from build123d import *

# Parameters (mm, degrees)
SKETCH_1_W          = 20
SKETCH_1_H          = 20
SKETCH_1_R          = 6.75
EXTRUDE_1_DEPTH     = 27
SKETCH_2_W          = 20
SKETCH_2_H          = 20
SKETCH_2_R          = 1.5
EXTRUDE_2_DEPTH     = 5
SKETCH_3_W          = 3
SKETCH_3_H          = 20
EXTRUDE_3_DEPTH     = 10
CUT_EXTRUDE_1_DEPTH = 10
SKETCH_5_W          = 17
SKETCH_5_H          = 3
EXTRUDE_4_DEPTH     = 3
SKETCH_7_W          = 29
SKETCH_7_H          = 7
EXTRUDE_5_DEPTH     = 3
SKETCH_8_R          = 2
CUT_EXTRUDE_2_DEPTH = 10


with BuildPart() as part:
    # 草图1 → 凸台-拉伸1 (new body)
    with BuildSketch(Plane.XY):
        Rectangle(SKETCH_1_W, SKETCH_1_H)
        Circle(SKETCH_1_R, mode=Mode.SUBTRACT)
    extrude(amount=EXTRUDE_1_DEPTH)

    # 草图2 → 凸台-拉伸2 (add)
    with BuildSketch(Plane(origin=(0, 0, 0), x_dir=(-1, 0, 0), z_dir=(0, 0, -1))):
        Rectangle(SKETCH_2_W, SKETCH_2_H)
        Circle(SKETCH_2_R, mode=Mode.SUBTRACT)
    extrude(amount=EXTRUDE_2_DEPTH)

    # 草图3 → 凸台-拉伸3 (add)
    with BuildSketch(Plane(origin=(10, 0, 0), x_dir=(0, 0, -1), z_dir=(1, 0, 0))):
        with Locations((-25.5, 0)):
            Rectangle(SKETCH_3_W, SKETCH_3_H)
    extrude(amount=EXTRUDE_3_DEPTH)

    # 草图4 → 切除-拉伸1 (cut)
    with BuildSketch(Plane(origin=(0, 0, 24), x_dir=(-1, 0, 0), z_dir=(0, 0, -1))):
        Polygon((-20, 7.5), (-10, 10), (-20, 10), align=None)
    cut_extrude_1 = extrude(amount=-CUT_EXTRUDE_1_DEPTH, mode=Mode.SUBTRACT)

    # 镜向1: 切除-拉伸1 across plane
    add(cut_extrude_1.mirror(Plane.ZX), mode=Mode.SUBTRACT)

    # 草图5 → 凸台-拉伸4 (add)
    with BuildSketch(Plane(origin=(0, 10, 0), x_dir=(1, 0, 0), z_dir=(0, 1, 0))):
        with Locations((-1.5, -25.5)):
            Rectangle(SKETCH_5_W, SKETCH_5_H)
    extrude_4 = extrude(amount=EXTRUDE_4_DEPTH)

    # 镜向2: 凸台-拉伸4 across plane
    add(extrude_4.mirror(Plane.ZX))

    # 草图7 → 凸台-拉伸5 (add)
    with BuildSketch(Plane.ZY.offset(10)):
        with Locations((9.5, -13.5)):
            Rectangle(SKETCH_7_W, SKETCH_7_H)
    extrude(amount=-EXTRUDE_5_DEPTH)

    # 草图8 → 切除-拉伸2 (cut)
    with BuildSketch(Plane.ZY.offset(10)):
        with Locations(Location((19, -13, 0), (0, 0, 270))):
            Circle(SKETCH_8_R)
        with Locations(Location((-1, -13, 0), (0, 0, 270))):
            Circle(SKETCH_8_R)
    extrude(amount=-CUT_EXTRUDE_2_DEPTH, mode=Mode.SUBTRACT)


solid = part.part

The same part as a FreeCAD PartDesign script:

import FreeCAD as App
import Part
import Sketcher

V = App.Vector

doc = App.newDocument("Part")
body = doc.addObject("PartDesign::Body", "Body")

sketch1 = body.newObject("Sketcher::SketchObject", "Sketch")
sketch1.AttachmentSupport = (doc.getObject("XY_Plane"), [""])
sketch1.MapMode = "FlatFace"
sketch1.addGeometry([
    Part.LineSegment(V(-10, 10, 0), V(-10, -10, 0)),
    Part.LineSegment(V(-10, -10, 0), V(10, -10, 0)),
    Part.LineSegment(V(10, -10, 0), V(10, 10, 0)),
    Part.LineSegment(V(10, 10, 0), V(-10, 10, 0)),
    Part.Circle(V(0, 0, 0), V(0, 0, 1), 7),
], False)
sketch1.addConstraint([
    Sketcher.Constraint("Coincident", 0, 2, 1, 1),
    Sketcher.Constraint("Coincident", 1, 2, 2, 1),
    Sketcher.Constraint("Coincident", 2, 2, 3, 1),
    Sketcher.Constraint("Coincident", 3, 2, 0, 1),
    Sketcher.Constraint("Vertical", 0),
    Sketcher.Constraint("Horizontal", 1),
    Sketcher.Constraint("Vertical", 2),
    Sketcher.Constraint("Horizontal", 3),
    Sketcher.Constraint("Coincident", 4, 3, -1, 1),
    Sketcher.Constraint("Symmetric", 0, 2, 2, 2, -1, 1),
    Sketcher.Constraint("Equal", 3, 0),
    Sketcher.Constraint("Diameter", 4, 13.5),
    Sketcher.Constraint("DistanceX", 1, 1, 1, 2, 20.0),
])
pad1 = body.newObject("PartDesign::Pad", "Pad")
pad1.Profile = sketch1
pad1.Length = 27

sketch2 = body.newObject("Sketcher::SketchObject", "Sketch001")
sketch2.AttachmentSupport = (doc.getObject("XY_Plane"), [""])
sketch2.MapMode = "FlatFace"
sketch2.addGeometry([
    Part.LineSegment(V(10, 10, 0), V(10, -10, 0)),
    Part.LineSegment(V(10, -10, 0), V(-10, -10, 0)),
    Part.LineSegment(V(-10, -10, 0), V(-10, 10, 0)),
    Part.LineSegment(V(-10, 10, 0), V(10, 10, 0)),
    Part.Circle(V(0, 0, 0), V(0, 0, 1), 1.5),
], False)
sketch2.addConstraint([
    Sketcher.Constraint("Coincident", 0, 2, 1, 1),
    Sketcher.Constraint("Coincident", 1, 2, 2, 1),
    Sketcher.Constraint("Coincident", 2, 2, 3, 1),
    Sketcher.Constraint("Coincident", 3, 2, 0, 1),
    Sketcher.Constraint("Vertical", 0),
    Sketcher.Constraint("Horizontal", 1),
    Sketcher.Constraint("Vertical", 2),
    Sketcher.Constraint("Horizontal", 3),
    Sketcher.Constraint("Coincident", 4, 3, -1, 1),
    Sketcher.Constraint("Symmetric", 0, 2, 2, 2, -1, 1),
    Sketcher.Constraint("Equal", 3, 0),
    Sketcher.Constraint("Diameter", 4, 3.0),
    Sketcher.Constraint("DistanceX", 1, 2, 1, 1, 20.0),
])
pad2 = body.newObject("PartDesign::Pad", "Pad001")
pad2.Profile = sketch2
pad2.Length = 5
pad2.Reversed = True

sketch3 = body.newObject("Sketcher::SketchObject", "Sketch002")
sketch3.AttachmentSupport = (doc.getObject("YZ_Plane"), [""])
sketch3.MapMode = "FlatFace"
sketch3.AttachmentOffset = App.Placement(V(0, 0, 10), App.Rotation())
sketch3.addGeometry([
    Part.LineSegment(V(10, 27, 0), V(-10, 27, 0)),
    Part.LineSegment(V(-10, 27, 0), V(-10, 24, 0)),
    Part.LineSegment(V(-10, 24, 0), V(10, 24, 0)),
    Part.LineSegment(V(10, 24, 0), V(10, 27, 0)),
], False)
sketch3.addConstraint([
    Sketcher.Constraint("Coincident", 0, 2, 1, 1),
    Sketcher.Constraint("Coincident", 1, 2, 2, 1),
    Sketcher.Constraint("Coincident", 2, 2, 3, 1),
    Sketcher.Constraint("Coincident", 3, 2, 0, 1),
    Sketcher.Constraint("Horizontal", 0),
    Sketcher.Constraint("Vertical", 1),
    Sketcher.Constraint("Horizontal", 2),
    Sketcher.Constraint("Vertical", 3),
    Sketcher.Constraint("DistanceX", 0, 2, 0, 1, 20.0),
    Sketcher.Constraint("DistanceY", 1, 2, 1, 1, 3.0),
    Sketcher.Constraint("DistanceX", 0, 2, -1, 1, 10.0),
    Sketcher.Constraint("DistanceY", -1, 1, 0, 2, 27.0),
])
pad3 = body.newObject("PartDesign::Pad", "Pad002")
pad3.Profile = sketch3
pad3.Length = 10

sketch4 = body.newObject("Sketcher::SketchObject", "Sketch003")
sketch4.AttachmentSupport = (doc.getObject("XY_Plane"), [""])
sketch4.MapMode = "FlatFace"
sketch4.AttachmentOffset = App.Placement(V(0, 0, 24), App.Rotation())
sketch4.addGeometry([
    Part.LineSegment(V(20, 7.5, 0), V(10, 10, 0)),
    Part.LineSegment(V(10, 10, 0), V(20, 10, 0)),
    Part.LineSegment(V(20, 10, 0), V(20, 7.5, 0)),
], False)
sketch4.addConstraint([
    Sketcher.Constraint("Coincident", 0, 2, 1, 1),
    Sketcher.Constraint("Coincident", 1, 2, 2, 1),
    Sketcher.Constraint("Coincident", 2, 2, 0, 1),
    Sketcher.Constraint("Horizontal", 1),
    Sketcher.Constraint("Vertical", 2),
    Sketcher.Constraint("DistanceX", 1, 1, 1, 2, 10.0),
    Sketcher.Constraint("DistanceY", 2, 2, 2, 1, 2.5),
    Sketcher.Constraint("DistanceX", -1, 1, 0, 2, 10.0),
    Sketcher.Constraint("DistanceY", -1, 1, 0, 2, 10.0),
])
pocket1 = body.newObject("PartDesign::Pocket", "Pocket")
pocket1.Profile = sketch4
pocket1.Length = 10
pocket1.Reversed = True
doc.recompute()

mirrored = body.newObject("PartDesign::Mirrored", "Mirrored")
mirrored.Originals = [pocket1]
mirrored.MirrorPlane = (doc.getObject("XZ_Plane"), [""])
body.Tip = mirrored

sketch5 = body.newObject("Sketcher::SketchObject", "Sketch004")
sketch5.AttachmentSupport = (doc.getObject("XZ_Plane"), [""])
sketch5.MapMode = "FlatFace"
sketch5.AttachmentOffset = App.Placement(V(0, 0, -10), App.Rotation())
sketch5.addGeometry([
    Part.LineSegment(V(-10, 24, 0), V(-10, 27, 0)),
    Part.LineSegment(V(-10, 27, 0), V(7, 27, 0)),
    Part.LineSegment(V(7, 27, 0), V(7, 24, 0)),
    Part.LineSegment(V(7, 24, 0), V(-10, 24, 0)),
], False)
sketch5.addConstraint([
    Sketcher.Constraint("Coincident", 0, 2, 1, 1),
    Sketcher.Constraint("Coincident", 1, 2, 2, 1),
    Sketcher.Constraint("Coincident", 2, 2, 3, 1),
    Sketcher.Constraint("Coincident", 3, 2, 0, 1),
    Sketcher.Constraint("Vertical", 0),
    Sketcher.Constraint("Horizontal", 1),
    Sketcher.Constraint("Vertical", 2),
    Sketcher.Constraint("Horizontal", 3),
    Sketcher.Constraint("DistanceX", 1, 1, 1, 2, 17.0),
    Sketcher.Constraint("DistanceY", 0, 1, 0, 2, 3.0),
    Sketcher.Constraint("DistanceX", 0, 2, -1, 1, 10.0),
    Sketcher.Constraint("DistanceY", -1, 1, 0, 2, 27.0),
])
pad4 = body.newObject("PartDesign::Pad", "Pad003")
pad4.Profile = sketch5
pad4.Length = 3
pad4.Reversed = True
doc.recompute()

mirrored2 = body.newObject("PartDesign::Mirrored", "Mirrored001")
mirrored2.Originals = [pad4]
mirrored2.MirrorPlane = (doc.getObject("XZ_Plane"), [""])
body.Tip = mirrored2

sketch6 = body.newObject("Sketcher::SketchObject", "Sketch005")
sketch6.AttachmentSupport = (doc.getObject("YZ_Plane"), [""])
sketch6.MapMode = "FlatFace"
sketch6.AttachmentOffset = App.Placement(V(0, 0, -10), App.Rotation())
sketch6.addGeometry([
    Part.LineSegment(V(-10, -5, 0), V(-17, -5, 0)),
    Part.LineSegment(V(-17, -5, 0), V(-17, 24, 0)),
    Part.LineSegment(V(-17, 24, 0), V(-10, 24, 0)),
    Part.LineSegment(V(-10, 24, 0), V(-10, -5, 0)),
], False)
sketch6.addConstraint([
    Sketcher.Constraint("Coincident", 0, 2, 1, 1),
    Sketcher.Constraint("Coincident", 1, 2, 2, 1),
    Sketcher.Constraint("Coincident", 2, 2, 3, 1),
    Sketcher.Constraint("Coincident", 3, 2, 0, 1),
    Sketcher.Constraint("Horizontal", 0),
    Sketcher.Constraint("Vertical", 1),
    Sketcher.Constraint("Horizontal", 2),
    Sketcher.Constraint("Vertical", 3),
    Sketcher.Constraint("DistanceX", 0, 2, 0, 1, 7.0),
    Sketcher.Constraint("DistanceY", 1, 1, 1, 2, 29.0),
    Sketcher.Constraint("DistanceX", 0, 2, -1, 1, 17.0),
    Sketcher.Constraint("DistanceY", 0, 2, -1, 1, 5.0),
])
pad5 = body.newObject("PartDesign::Pad", "Pad004")
pad5.Profile = sketch6
pad5.Length = 3

sketch7 = body.newObject("Sketcher::SketchObject", "Sketch006")
sketch7.AttachmentSupport = (doc.getObject("YZ_Plane"), [""])
sketch7.MapMode = "FlatFace"
sketch7.AttachmentOffset = App.Placement(V(0, 0, -10), App.Rotation())
sketch7.addGeometry([
    Part.Circle(V(-13, 19, 0), V(0, 0, 1), 2),
    Part.Circle(V(-13, -1, 0), V(0, 0, 1), 2),
], False)
sketch7.addConstraint([
    Sketcher.Constraint("Equal", 0, 1),
    Sketcher.Constraint("Vertical", 0, 3, 1, 3),
    Sketcher.Constraint("Diameter", 0, 4.0),
    Sketcher.Constraint("DistanceX", 0, 3, -1, 1, 13.0),
    Sketcher.Constraint("DistanceY", -1, 1, 0, 3, 19.0),
    Sketcher.Constraint("DistanceY", 1, 3, -1, 1, 1.0),
])
pocket2 = body.newObject("PartDesign::Pocket", "Pocket001")
pocket2.Profile = sketch7
pocket2.Length = 10
pocket2.Reversed = True

doc.recompute()
